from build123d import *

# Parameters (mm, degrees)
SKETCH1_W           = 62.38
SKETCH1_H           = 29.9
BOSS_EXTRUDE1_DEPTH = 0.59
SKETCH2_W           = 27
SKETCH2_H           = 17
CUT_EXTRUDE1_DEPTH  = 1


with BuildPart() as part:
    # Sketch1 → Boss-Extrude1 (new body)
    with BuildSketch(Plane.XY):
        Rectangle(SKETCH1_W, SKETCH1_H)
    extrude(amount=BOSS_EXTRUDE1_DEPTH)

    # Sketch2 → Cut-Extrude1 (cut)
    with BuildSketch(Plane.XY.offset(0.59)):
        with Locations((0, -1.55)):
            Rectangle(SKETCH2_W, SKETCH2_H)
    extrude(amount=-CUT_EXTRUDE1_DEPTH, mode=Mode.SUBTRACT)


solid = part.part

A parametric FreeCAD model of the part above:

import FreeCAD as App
import Part
import Sketcher


def add_polygon(sketch, points):
    """Adds a closed chain of lines whose ends are joined by coincident constraints."""
    first, n = sketch.GeometryCount, len(points)
    for a, b in zip(points, points[1:] + points[:1]):
        sketch.addGeometry(Part.LineSegment(App.Vector(*a, 0), App.Vector(*b, 0)), False)
    for i in range(n):
        sketch.addConstraint(Sketcher.Constraint("Coincident", first + i, 2, first + (i + 1) % n, 1))

doc = App.newDocument("Part")
body = doc.addObject("PartDesign::Body", "Body")

# Sketch on XY plane
sketch1 = body.newObject("Sketcher::SketchObject", "Sketch")
sketch1.AttachmentSupport = (doc.getObject("XY_Plane"), [""])
sketch1.MapMode = "FlatFace"
add_polygon(sketch1, [(-31, 15), (-31, -15), (31, -15), (31, 15)])  # lines 0-3
sketch1.addConstraint([
    Sketcher.Constraint("Vertical", 0),
    Sketcher.Constraint("Horizontal", 1),
    Sketcher.Constraint("Vertical", 2),
    Sketcher.Constraint("Horizontal", 3),
    Sketcher.Constraint("Symmetric", 0, 2, 2, 2, -1, 1),
    Sketcher.Constraint("DistanceY", 0, 2, 0, 1, 29.9),
    Sketcher.Constraint("DistanceX", 1, 1, 1, 2, 62.38),
])
pad1 = body.newObject("PartDesign::Pad", "Pad")
pad1.Profile = sketch1
pad1.Length = 0.59

# Sketch on XY plane
sketch2 = body.newObject("Sketcher::SketchObject", "Sketch001")
sketch2.AttachmentSupport = (doc.getObject("XY_Plane"), [""])
sketch2.MapMode = "FlatFace"
sketch2.AttachmentOffset = App.Placement(App.Vector(0, 0, 0.59), App.Rotation())
add_polygon(sketch2, [(-14, 7), (-14, -10), (14, -10), (14, 7)])  # lines 0-3
sketch2.addConstraint([
    Sketcher.Constraint("Vertical", 0),
    Sketcher.Constraint("Horizontal", 1),
    Sketcher.Constraint("Vertical", 2),
    Sketcher.Constraint("Horizontal", 3),
    Sketcher.Constraint("DistanceX", 1, 1, 1, 2, 27.0),
    Sketcher.Constraint("DistanceY", 0, 2, 0, 1, 17.0),
    Sketcher.Constraint("DistanceX", 0, 2, -1, 1, 13.5),
    Sketcher.Constraint("DistanceY", 0, 2, -1, 1, 10.05),
])
pocket1 = body.newObject("PartDesign::Pocket", "Pocket")
pocket1.Profile = sketch2
pocket1.Length = 1

doc.recompute()
